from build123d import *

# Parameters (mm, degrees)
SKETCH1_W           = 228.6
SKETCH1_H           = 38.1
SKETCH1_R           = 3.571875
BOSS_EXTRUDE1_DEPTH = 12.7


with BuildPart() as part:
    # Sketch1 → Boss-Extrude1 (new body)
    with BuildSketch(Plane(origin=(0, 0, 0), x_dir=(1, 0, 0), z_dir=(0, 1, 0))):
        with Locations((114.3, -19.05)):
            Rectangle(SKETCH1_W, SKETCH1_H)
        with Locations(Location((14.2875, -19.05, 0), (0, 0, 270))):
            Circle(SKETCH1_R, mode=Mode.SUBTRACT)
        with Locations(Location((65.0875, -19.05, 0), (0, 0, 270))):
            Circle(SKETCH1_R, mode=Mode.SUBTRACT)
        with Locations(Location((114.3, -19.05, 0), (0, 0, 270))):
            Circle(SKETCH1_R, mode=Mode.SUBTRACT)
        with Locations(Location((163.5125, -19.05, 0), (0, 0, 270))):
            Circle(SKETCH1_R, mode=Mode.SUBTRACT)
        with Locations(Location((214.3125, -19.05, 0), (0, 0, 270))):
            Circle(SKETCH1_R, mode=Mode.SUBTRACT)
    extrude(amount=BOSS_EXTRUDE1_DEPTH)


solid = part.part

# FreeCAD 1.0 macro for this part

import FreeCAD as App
import Part
import Sketcher

V = App.Vector
Q = App.Units.Quantity

doc = App.newDocument("Part")
body = doc.addObject("PartDesign::Body", "Body")

# Sketch on XZ plane
sketch1 = body.newObject("Sketcher::SketchObject", "Sketch")
sketch1.AttachmentSupport = (doc.getObject("XZ_Plane"), [""])
sketch1.MapMode = "FlatFace"
sketch1.addGeometry([
    Part.LineSegment(V(0, 0, 0), V(0, 38.1, 0)),  # 0
    Part.LineSegment(V(0, 38.1, 0), V(228.6, 38.1, 0)),  # 1
    Part.LineSegment(V(228.6, 38.1, 0), V(228.6, 0, 0)),  # 2
    Part.LineSegment(V(228.6, 0, 0), V(0, 0, 0)),  # 3
    Part.Circle(V(14.3, 19.1, 0), V(0, 0, 1), 3.6),  # 4
    Part.Circle(V(65.1, 19.1, 0), V(0, 0, 1), 3.6),  # 5
    Part.Circle(V(114.3, 19.1, 0), V(0, 0, 1), 3.6),  # 6
    Part.Circle(V(163.5, 19.1, 0), V(0, 0, 1), 3.6),  # 7
    Part.Circle(V(214.3, 19.1, 0), V(0, 0, 1), 3.6),  # 8
], False)
sketch1.addConstraint([
    Sketcher.Constraint("Coincident", 0, 2, 1, 1),
    Sketcher.Constraint("Coincident", 1, 2, 2, 1),
    Sketcher.Constraint("Coincident", 2, 2, 3, 1),
    Sketcher.Constraint("Coincident", 3, 2, 0, 1),
    Sketcher.Constraint("Vertical", 0),
    Sketcher.Constraint("Horizontal", 1),
    Sketcher.Constraint("Vertical", 2),
    Sketcher.Constraint("Horizontal", 3),
    Sketcher.Constraint("Coincident", 3, 2, -1, 1),
    Sketcher.Constraint("Equal", 4, 5),
    Sketcher.Constraint("Equal", 5, 6),
    Sketcher.Constraint("Equal", 6, 7),
    Sketcher.Constraint("Equal", 7, 8),
    Sketcher.Constraint("Horizontal", 4, 3, 5, 3),
    Sketcher.Constraint("Horizontal", 5, 3, 6, 3),
    Sketcher.Constraint("Horizontal", 6, 3, 7, 3),
    Sketcher.Constraint("Horizontal", 7, 3, 8, 3),
    Sketcher.Constraint("DistanceX", 1, 1, 1, 2, Q("9 in")),
    Sketcher.Constraint("Diameter", 4, Q("0.28125 in")),
    Sketcher.Constraint("DistanceY", 0, 1, 0, 2, Q("1.5 in")),
    Sketcher.Constraint("DistanceX", 4, 3, 5, 3, Q("2 in")),
    Sketcher.Constraint("DistanceX", 7, 3, 8, 3, Q("2 in")),
    Sketcher.Constraint("DistanceX", -1, 1, 6, 3, Q("4.5 in")),
    Sketcher.Constraint("DistanceY", -1, 1, 4, 3, Q("0.75 in")),
    Sketcher.Constraint("DistanceX", -1, 1, 4, 3, Q("0.5625 in")),
    Sketcher.Constraint("DistanceX", -1, 1, 7, 3, Q("6.4375 in")),
])
pad1 = body.newObject("PartDesign::Pad", "Pad")
pad1.Profile = sketch1
pad1.Length = Q("0.5 in")
pad1.Reversed = True

doc.recompute()
